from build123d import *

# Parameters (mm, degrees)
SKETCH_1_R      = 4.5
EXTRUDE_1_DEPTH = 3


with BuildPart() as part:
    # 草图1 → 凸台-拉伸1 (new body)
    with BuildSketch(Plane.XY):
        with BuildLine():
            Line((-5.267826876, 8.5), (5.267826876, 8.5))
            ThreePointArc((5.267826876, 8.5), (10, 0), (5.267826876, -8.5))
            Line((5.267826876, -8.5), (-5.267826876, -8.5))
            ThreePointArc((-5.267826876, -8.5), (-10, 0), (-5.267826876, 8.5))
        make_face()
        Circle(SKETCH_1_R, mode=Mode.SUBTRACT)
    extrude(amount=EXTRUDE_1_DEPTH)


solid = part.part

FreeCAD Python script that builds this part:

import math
import FreeCAD as App
import Part
import Sketcher
from FreeCAD import Vector

doc = App.newDocument("Part")
body = doc.addObject("PartDesign::Body", "Body")

sketch1 = body.newObject("Sketcher::SketchObject", "Sketch")
sketch1.AttachmentSupport = (doc.getObject("XY_Plane"), [""])
sketch1.MapMode = "FlatFace"
sketch1.addGeometry(Part.LineSegment(Vector(5.3, 8.5, 0), Vector(-5.3, 8.5, 0)), False)
sketch1.addGeometry(Part.ArcOfCircle(Part.Circle(Vector(0, 0, 0), Vector(0, 0, 1), 10), math.radians(122), math.radians(238)), False)
sketch1.addGeometry(Part.LineSegment(Vector(-5.3, -8.5, 0), Vector(5.3, -8.5, 0)), False)
sketch1.addGeometry(Part.ArcOfCircle(Part.Circle(Vector(0, 0, 0), Vector(0, 0, 1), 10), math.radians(-58), math.radians(58)), False)
sketch1.addGeometry(Part.Circle(Vector(0, 0, 0), Vector(0, 0, 1), 4.5), False)
sketch1.addConstraint(Sketcher.Constraint("Coincident", 0, 2, 1, 1))
sketch1.addConstraint(Sketcher.Constraint("Coincident", 1, 2, 2, 1))
sketch1.addConstraint(Sketcher.Constraint("Coincident", 2, 2, 3, 1))
sketch1.addConstraint(Sketcher.Constraint("Coincident", 3, 2, 0, 1))
sketch1.addConstraint(Sketcher.Constraint("Horizontal", 0))
sketch1.addConstraint(Sketcher.Constraint("Horizontal", 2))
sketch1.addConstraint(Sketcher.Constraint("Coincident", 1, 3, -1, 1))
sketch1.addConstraint(Sketcher.Constraint("Coincident", 3, 3, -1, 1))
sketch1.addConstraint(Sketcher.Constraint("Coincident", 4, 3, -1, 1))
sketch1.addConstraint(Sketcher.Constraint("Equal", 1, 3))
sketch1.addConstraint(Sketcher.Constraint("Vertical", 0, 2, 1, 2))
sketch1.addConstraint(Sketcher.Constraint("Diameter", 4, 9.0))
sketch1.addConstraint(Sketcher.Constraint("Radius", 1, 10.0))
sketch1.addConstraint(Sketcher.Constraint("DistanceY", 1, 2, 0, 2, 17.0))
pad1 = body.newObject("PartDesign::Pad", "Pad")
pad1.Profile = sketch1
pad1.Length = 3

doc.recompute()
